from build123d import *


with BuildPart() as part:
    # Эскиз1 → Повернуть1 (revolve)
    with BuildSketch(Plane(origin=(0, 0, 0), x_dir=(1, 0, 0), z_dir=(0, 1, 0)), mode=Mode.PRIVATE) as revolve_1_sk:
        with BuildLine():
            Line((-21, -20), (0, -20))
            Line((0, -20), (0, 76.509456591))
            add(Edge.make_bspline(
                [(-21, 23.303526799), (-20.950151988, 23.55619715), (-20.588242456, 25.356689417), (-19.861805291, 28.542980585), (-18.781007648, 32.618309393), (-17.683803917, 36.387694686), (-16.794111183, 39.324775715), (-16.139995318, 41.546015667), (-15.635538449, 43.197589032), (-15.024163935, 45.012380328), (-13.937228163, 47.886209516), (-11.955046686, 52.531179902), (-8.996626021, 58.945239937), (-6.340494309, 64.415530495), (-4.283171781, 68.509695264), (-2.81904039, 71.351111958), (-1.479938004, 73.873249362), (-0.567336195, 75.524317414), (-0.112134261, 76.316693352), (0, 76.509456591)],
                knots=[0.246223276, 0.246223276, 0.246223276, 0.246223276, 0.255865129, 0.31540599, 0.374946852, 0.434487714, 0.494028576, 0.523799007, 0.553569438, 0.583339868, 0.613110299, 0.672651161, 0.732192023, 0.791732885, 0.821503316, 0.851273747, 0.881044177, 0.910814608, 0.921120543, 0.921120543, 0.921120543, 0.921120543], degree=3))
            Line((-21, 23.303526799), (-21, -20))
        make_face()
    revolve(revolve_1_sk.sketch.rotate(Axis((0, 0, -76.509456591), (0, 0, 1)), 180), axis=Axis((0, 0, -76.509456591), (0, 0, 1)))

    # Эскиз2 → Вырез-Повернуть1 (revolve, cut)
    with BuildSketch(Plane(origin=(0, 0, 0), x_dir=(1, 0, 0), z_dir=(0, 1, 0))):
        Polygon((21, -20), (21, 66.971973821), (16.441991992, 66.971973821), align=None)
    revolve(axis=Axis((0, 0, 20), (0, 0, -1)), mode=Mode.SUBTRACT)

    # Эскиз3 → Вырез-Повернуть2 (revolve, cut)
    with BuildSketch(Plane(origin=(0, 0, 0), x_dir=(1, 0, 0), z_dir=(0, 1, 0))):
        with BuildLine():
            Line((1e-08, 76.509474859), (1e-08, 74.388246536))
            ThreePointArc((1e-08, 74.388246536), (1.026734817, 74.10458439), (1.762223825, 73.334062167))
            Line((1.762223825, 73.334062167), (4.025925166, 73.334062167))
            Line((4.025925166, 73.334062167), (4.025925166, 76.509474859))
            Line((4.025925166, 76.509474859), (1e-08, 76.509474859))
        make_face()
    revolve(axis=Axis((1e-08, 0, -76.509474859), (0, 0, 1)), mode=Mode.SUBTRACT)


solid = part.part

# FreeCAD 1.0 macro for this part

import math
import FreeCAD as App
import Part
import Sketcher

V = App.Vector
Q = App.Units.Quantity

doc = App.newDocument("Part")
params = doc.addObject("Spreadsheet::Sheet", "Params")
for row, (alias, value) in enumerate([
    ("revolution_angle", "360 deg"),
    ("groove_angle", "360 deg"),
    ("sketch3_radius", "2 mm"),
    ("groove2_angle", "360 deg"),
], start=1):
    params.set(f"A{row}", alias)
    params.set(f"B{row}", "=" + value)
    params.setAlias(f"B{row}", alias)

body = doc.addObject("PartDesign::Body", "Body")

# Sketch on XZ plane
sketch1 = body.newObject("Sketcher::SketchObject", "Sketch")
sketch1.AttachmentSupport = (doc.getObject("XZ_Plane"), [""])
sketch1.MapMode = "FlatFace"
sketch1.addGeometry(Part.LineSegment(V(-21, 20, 0), V(0, 20, 0)), False)
sketch1.addGeometry(Part.LineSegment(V(0, 20, 0), V(0, -76.509457, 0)), False)
sketch1.addGeometry(Part.BSplineCurve([V(-21, -23.303527, 0), V(-20.950152, -23.556197, 0), V(-20.588242, -25.356689, 0), V(-19.861805, -28.542981, 0), V(-18.781008, -32.618309, 0), V(-17.683804, -36.387695, 0), V(-16.794111, -39.324776, 0), V(-16.139995, -41.546016, 0), V(-15.635538, -43.197589, 0), V(-15.024164, -45.01238, 0), V(-13.937228, -47.88621, 0), V(-11.955047, -52.53118, 0), V(-8.996626, -58.94524, 0), V(-6.340494, -64.41553, 0), V(-4.283172, -68.509695, 0), V(-2.81904, -71.351112, 0), V(-1.479938, -73.873249, 0), V(-0.567336, -75.524317, 0), V(-0.112134, -76.316693, 0), V(0, -76.509457, 0)], [4, 1, 1, 1, 1, 1, 1, 1, 1, 1, 1, 1, 1, 1, 1, 1, 1, 4], [0.246223276, 0.255865129, 0.31540599, 0.374946852, 0.434487714, 0.494028576, 0.523799007, 0.553569438, 0.583339868, 0.613110299, 0.672651161, 0.732192023, 0.791732885, 0.821503316, 0.851273747, 0.881044177, 0.910814608, 0.921120543], False, 3, [1, 1, 1, 1, 1, 1, 1, 1, 1, 1, 1, 1, 1, 1, 1, 1, 1, 1, 1, 1], False), False)
sketch1.addGeometry(Part.LineSegment(V(-21, -23.303527, 0), V(-21, 20, 0)), False)
sketch1.addConstraint(Sketcher.Constraint("Block", 2))
sketch1.addConstraint(Sketcher.Constraint("Coincident", 0, 2, 1, 1))
sketch1.addConstraint(Sketcher.Constraint("Coincident", 1, 2, 2, 2))
sketch1.addConstraint(Sketcher.Constraint("Coincident", 2, 1, 3, 1))
sketch1.addConstraint(Sketcher.Constraint("Coincident", 3, 2, 0, 1))
sketch1.addConstraint(Sketcher.Constraint("Horizontal", 0))
sketch1.addConstraint(Sketcher.Constraint("Vertical", 1))
sketch1.addConstraint(Sketcher.Constraint("Vertical", 3))
sketch1.addConstraint(Sketcher.Constraint("DistanceY", -1, 1, 0, 2, Q("20 mm")))
revolution = body.newObject("PartDesign::Revolution", "Revolution")
revolution.Profile = sketch1
revolution.ReferenceAxis = (sketch1, ["V_Axis"])
revolution.setExpression("Angle", "Params.revolution_angle")

# Sketch on XZ plane
sketch2 = body.newObject("Sketcher::SketchObject", "Sketch001")
sketch2.AttachmentSupport = (doc.getObject("XZ_Plane"), [""])
sketch2.MapMode = "FlatFace"
sketch2.addGeometry(Part.LineSegment(V(21, 20, 0), V(21, -66.971974, 0)), False)
sketch2.addGeometry(Part.LineSegment(V(21, -66.971974, 0), V(16.441992, -66.971974, 0)), False)
sketch2.addGeometry(Part.LineSegment(V(16.441992, -66.971974, 0), V(21, 20, 0)), False)
sketch2.addConstraint(Sketcher.Constraint("Coincident", 0, 2, 1, 1))
sketch2.addConstraint(Sketcher.Constraint("Coincident", 1, 2, 2, 1))
sketch2.addConstraint(Sketcher.Constraint("Coincident", 2, 2, 0, 1))
sketch2.addConstraint(Sketcher.Constraint("Vertical", 0))
sketch2.addConstraint(Sketcher.Constraint("Horizontal", 1))
sketch2.addConstraint(Sketcher.Constraint("Angle", 2, Q("87 deg")))
sketch2.addConstraint(Sketcher.Constraint("DistanceX", -1, 1, 0, 2, Q("21 mm")))
sketch2.addConstraint(Sketcher.Constraint("DistanceY", -1, 1, 2, 2, Q("20 mm")))
sketch2.addConstraint(Sketcher.Constraint("DistanceX", 1, 2, 1, 1, Q("4.558008 mm")))
groove = body.newObject("PartDesign::Groove", "Groove")
groove.Profile = sketch2
groove.ReferenceAxis = (sketch2, ["V_Axis"])
groove.setExpression("Angle", "Params.groove_angle")

# Sketch on XZ plane
sketch3 = body.newObject("Sketcher::SketchObject", "Sketch002")
sketch3.AttachmentSupport = (doc.getObject("XZ_Plane"), [""])
sketch3.MapMode = "FlatFace"
sketch3.addGeometry(Part.LineSegment(V(0, -76.509475, 0), V(0, -74.388247, 0)), False)
sketch3.addGeometry(Part.ArcOfCircle(Part.Circle(V(0, -72.388247, 0), V(0, 0, 1), 2), math.radians(-90), math.radians(-28.223215)), False)
sketch3.addGeometry(Part.LineSegment(V(1.762224, -73.334062, 0), V(4.025925, -73.334062, 0)), False)
sketch3.addGeometry(Part.LineSegment(V(4.025925, -73.334062, 0), V(4.025925, -76.509475, 0)), False)
sketch3.addGeometry(Part.LineSegment(V(4.025925, -76.509475, 0), V(0, -76.509475, 0)), False)
sketch3.addConstraint(Sketcher.Constraint("Coincident", 0, 2, 1, 1))
sketch3.addConstraint(Sketcher.Constraint("Coincident", 1, 2, 2, 1))
sketch3.addConstraint(Sketcher.Constraint("Coincident", 2, 2, 3, 1))
sketch3.addConstraint(Sketcher.Constraint("Coincident", 3, 2, 4, 1))
sketch3.addConstraint(Sketcher.Constraint("Coincident", 4, 2, 0, 1))
sketch3.addConstraint(Sketcher.Constraint("Vertical", 0))
sketch3.addConstraint(Sketcher.Constraint("Horizontal", 2))
sketch3.addConstraint(Sketcher.Constraint("Vertical", 3))
sketch3.addConstraint(Sketcher.Constraint("Horizontal", 4))
sketch3.addConstraint(Sketcher.Constraint("PointOnObject", 1, 3, -2))
sketch3.addConstraint(Sketcher.Constraint("PointOnObject", 0, 2, -2))
sketch3.addConstraint(Sketcher.Constraint("Radius", 1, Q("2 mm")))
sketch3.addConstraint(Sketcher.Constraint("DistanceX", 2, 1, 2, 2, Q("2.263701 mm")))
sketch3.addConstraint(Sketcher.Constraint("DistanceY", 0, 1, 0, 2, Q("2.121228 mm")))
sketch3.addConstraint(Sketcher.Constraint("DistanceX", 4, 2, 4, 1, Q("4.025925 mm")))
sketch3.addConstraint(Sketcher.Constraint("DistanceY", 1, 3, -1, 1, Q("72.388247 mm")))
sketch3.setExpression("Constraints[11]", "Params.sketch3_radius")
groove2 = body.newObject("PartDesign::Groove", "Groove001")
groove2.Profile = sketch3
groove2.ReferenceAxis = (sketch3, ["V_Axis"])
groove2.setExpression("Angle", "Params.groove2_angle")

doc.recompute()
